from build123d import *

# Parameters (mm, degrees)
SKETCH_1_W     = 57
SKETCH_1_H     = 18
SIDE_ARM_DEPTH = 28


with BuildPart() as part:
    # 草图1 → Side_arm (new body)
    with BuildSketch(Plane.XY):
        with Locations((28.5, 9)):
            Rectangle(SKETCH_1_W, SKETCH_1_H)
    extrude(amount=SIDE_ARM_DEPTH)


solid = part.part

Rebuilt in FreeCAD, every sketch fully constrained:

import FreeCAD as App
import Part
import Sketcher

V = App.Vector
Q = App.Units.Quantity

doc = App.newDocument("Part")
body = doc.addObject("PartDesign::Body", "Body")

sketch1 = body.newObject("Sketcher::SketchObject", "Sketch")
sketch1.AttachmentSupport = (doc.getObject("XY_Plane"), [""])
sketch1.MapMode = "FlatFace"
sketch1.addGeometry(Part.LineSegment(V(0, 18, 0), V(0, 0, 0)), False)
sketch1.addGeometry(Part.LineSegment(V(0, 0, 0), V(57, 0, 0)), False)
sketch1.addGeometry(Part.LineSegment(V(57, 0, 0), V(57, 18, 0)), False)
sketch1.addGeometry(Part.LineSegment(V(57, 18, 0), V(0, 18, 0)), False)
sketch1.addConstraint(Sketcher.Constraint("Coincident", 0, 2, 1, 1))
sketch1.addConstraint(Sketcher.Constraint("Coincident", 1, 2, 2, 1))
sketch1.addConstraint(Sketcher.Constraint("Coincident", 2, 2, 3, 1))
sketch1.addConstraint(Sketcher.Constraint("Coincident", 3, 2, 0, 1))
sketch1.addConstraint(Sketcher.Constraint("Vertical", 0))
sketch1.addConstraint(Sketcher.Constraint("Horizontal", 1))
sketch1.addConstraint(Sketcher.Constraint("Vertical", 2))
sketch1.addConstraint(Sketcher.Constraint("Horizontal", 3))
sketch1.addConstraint(Sketcher.Constraint("Coincident", 0, 2, -1, 1))
sketch1.addConstraint(Sketcher.Constraint("DistanceX", 1, 1, 1, 2, Q("57 mm")))
sketch1.addConstraint(Sketcher.Constraint("DistanceY", 0, 2, 0, 1, Q("18 mm")))
pad1 = body.newObject("PartDesign::Pad", "Pad")
pad1.Profile = sketch1
pad1.Length = 28

doc.recompute()
